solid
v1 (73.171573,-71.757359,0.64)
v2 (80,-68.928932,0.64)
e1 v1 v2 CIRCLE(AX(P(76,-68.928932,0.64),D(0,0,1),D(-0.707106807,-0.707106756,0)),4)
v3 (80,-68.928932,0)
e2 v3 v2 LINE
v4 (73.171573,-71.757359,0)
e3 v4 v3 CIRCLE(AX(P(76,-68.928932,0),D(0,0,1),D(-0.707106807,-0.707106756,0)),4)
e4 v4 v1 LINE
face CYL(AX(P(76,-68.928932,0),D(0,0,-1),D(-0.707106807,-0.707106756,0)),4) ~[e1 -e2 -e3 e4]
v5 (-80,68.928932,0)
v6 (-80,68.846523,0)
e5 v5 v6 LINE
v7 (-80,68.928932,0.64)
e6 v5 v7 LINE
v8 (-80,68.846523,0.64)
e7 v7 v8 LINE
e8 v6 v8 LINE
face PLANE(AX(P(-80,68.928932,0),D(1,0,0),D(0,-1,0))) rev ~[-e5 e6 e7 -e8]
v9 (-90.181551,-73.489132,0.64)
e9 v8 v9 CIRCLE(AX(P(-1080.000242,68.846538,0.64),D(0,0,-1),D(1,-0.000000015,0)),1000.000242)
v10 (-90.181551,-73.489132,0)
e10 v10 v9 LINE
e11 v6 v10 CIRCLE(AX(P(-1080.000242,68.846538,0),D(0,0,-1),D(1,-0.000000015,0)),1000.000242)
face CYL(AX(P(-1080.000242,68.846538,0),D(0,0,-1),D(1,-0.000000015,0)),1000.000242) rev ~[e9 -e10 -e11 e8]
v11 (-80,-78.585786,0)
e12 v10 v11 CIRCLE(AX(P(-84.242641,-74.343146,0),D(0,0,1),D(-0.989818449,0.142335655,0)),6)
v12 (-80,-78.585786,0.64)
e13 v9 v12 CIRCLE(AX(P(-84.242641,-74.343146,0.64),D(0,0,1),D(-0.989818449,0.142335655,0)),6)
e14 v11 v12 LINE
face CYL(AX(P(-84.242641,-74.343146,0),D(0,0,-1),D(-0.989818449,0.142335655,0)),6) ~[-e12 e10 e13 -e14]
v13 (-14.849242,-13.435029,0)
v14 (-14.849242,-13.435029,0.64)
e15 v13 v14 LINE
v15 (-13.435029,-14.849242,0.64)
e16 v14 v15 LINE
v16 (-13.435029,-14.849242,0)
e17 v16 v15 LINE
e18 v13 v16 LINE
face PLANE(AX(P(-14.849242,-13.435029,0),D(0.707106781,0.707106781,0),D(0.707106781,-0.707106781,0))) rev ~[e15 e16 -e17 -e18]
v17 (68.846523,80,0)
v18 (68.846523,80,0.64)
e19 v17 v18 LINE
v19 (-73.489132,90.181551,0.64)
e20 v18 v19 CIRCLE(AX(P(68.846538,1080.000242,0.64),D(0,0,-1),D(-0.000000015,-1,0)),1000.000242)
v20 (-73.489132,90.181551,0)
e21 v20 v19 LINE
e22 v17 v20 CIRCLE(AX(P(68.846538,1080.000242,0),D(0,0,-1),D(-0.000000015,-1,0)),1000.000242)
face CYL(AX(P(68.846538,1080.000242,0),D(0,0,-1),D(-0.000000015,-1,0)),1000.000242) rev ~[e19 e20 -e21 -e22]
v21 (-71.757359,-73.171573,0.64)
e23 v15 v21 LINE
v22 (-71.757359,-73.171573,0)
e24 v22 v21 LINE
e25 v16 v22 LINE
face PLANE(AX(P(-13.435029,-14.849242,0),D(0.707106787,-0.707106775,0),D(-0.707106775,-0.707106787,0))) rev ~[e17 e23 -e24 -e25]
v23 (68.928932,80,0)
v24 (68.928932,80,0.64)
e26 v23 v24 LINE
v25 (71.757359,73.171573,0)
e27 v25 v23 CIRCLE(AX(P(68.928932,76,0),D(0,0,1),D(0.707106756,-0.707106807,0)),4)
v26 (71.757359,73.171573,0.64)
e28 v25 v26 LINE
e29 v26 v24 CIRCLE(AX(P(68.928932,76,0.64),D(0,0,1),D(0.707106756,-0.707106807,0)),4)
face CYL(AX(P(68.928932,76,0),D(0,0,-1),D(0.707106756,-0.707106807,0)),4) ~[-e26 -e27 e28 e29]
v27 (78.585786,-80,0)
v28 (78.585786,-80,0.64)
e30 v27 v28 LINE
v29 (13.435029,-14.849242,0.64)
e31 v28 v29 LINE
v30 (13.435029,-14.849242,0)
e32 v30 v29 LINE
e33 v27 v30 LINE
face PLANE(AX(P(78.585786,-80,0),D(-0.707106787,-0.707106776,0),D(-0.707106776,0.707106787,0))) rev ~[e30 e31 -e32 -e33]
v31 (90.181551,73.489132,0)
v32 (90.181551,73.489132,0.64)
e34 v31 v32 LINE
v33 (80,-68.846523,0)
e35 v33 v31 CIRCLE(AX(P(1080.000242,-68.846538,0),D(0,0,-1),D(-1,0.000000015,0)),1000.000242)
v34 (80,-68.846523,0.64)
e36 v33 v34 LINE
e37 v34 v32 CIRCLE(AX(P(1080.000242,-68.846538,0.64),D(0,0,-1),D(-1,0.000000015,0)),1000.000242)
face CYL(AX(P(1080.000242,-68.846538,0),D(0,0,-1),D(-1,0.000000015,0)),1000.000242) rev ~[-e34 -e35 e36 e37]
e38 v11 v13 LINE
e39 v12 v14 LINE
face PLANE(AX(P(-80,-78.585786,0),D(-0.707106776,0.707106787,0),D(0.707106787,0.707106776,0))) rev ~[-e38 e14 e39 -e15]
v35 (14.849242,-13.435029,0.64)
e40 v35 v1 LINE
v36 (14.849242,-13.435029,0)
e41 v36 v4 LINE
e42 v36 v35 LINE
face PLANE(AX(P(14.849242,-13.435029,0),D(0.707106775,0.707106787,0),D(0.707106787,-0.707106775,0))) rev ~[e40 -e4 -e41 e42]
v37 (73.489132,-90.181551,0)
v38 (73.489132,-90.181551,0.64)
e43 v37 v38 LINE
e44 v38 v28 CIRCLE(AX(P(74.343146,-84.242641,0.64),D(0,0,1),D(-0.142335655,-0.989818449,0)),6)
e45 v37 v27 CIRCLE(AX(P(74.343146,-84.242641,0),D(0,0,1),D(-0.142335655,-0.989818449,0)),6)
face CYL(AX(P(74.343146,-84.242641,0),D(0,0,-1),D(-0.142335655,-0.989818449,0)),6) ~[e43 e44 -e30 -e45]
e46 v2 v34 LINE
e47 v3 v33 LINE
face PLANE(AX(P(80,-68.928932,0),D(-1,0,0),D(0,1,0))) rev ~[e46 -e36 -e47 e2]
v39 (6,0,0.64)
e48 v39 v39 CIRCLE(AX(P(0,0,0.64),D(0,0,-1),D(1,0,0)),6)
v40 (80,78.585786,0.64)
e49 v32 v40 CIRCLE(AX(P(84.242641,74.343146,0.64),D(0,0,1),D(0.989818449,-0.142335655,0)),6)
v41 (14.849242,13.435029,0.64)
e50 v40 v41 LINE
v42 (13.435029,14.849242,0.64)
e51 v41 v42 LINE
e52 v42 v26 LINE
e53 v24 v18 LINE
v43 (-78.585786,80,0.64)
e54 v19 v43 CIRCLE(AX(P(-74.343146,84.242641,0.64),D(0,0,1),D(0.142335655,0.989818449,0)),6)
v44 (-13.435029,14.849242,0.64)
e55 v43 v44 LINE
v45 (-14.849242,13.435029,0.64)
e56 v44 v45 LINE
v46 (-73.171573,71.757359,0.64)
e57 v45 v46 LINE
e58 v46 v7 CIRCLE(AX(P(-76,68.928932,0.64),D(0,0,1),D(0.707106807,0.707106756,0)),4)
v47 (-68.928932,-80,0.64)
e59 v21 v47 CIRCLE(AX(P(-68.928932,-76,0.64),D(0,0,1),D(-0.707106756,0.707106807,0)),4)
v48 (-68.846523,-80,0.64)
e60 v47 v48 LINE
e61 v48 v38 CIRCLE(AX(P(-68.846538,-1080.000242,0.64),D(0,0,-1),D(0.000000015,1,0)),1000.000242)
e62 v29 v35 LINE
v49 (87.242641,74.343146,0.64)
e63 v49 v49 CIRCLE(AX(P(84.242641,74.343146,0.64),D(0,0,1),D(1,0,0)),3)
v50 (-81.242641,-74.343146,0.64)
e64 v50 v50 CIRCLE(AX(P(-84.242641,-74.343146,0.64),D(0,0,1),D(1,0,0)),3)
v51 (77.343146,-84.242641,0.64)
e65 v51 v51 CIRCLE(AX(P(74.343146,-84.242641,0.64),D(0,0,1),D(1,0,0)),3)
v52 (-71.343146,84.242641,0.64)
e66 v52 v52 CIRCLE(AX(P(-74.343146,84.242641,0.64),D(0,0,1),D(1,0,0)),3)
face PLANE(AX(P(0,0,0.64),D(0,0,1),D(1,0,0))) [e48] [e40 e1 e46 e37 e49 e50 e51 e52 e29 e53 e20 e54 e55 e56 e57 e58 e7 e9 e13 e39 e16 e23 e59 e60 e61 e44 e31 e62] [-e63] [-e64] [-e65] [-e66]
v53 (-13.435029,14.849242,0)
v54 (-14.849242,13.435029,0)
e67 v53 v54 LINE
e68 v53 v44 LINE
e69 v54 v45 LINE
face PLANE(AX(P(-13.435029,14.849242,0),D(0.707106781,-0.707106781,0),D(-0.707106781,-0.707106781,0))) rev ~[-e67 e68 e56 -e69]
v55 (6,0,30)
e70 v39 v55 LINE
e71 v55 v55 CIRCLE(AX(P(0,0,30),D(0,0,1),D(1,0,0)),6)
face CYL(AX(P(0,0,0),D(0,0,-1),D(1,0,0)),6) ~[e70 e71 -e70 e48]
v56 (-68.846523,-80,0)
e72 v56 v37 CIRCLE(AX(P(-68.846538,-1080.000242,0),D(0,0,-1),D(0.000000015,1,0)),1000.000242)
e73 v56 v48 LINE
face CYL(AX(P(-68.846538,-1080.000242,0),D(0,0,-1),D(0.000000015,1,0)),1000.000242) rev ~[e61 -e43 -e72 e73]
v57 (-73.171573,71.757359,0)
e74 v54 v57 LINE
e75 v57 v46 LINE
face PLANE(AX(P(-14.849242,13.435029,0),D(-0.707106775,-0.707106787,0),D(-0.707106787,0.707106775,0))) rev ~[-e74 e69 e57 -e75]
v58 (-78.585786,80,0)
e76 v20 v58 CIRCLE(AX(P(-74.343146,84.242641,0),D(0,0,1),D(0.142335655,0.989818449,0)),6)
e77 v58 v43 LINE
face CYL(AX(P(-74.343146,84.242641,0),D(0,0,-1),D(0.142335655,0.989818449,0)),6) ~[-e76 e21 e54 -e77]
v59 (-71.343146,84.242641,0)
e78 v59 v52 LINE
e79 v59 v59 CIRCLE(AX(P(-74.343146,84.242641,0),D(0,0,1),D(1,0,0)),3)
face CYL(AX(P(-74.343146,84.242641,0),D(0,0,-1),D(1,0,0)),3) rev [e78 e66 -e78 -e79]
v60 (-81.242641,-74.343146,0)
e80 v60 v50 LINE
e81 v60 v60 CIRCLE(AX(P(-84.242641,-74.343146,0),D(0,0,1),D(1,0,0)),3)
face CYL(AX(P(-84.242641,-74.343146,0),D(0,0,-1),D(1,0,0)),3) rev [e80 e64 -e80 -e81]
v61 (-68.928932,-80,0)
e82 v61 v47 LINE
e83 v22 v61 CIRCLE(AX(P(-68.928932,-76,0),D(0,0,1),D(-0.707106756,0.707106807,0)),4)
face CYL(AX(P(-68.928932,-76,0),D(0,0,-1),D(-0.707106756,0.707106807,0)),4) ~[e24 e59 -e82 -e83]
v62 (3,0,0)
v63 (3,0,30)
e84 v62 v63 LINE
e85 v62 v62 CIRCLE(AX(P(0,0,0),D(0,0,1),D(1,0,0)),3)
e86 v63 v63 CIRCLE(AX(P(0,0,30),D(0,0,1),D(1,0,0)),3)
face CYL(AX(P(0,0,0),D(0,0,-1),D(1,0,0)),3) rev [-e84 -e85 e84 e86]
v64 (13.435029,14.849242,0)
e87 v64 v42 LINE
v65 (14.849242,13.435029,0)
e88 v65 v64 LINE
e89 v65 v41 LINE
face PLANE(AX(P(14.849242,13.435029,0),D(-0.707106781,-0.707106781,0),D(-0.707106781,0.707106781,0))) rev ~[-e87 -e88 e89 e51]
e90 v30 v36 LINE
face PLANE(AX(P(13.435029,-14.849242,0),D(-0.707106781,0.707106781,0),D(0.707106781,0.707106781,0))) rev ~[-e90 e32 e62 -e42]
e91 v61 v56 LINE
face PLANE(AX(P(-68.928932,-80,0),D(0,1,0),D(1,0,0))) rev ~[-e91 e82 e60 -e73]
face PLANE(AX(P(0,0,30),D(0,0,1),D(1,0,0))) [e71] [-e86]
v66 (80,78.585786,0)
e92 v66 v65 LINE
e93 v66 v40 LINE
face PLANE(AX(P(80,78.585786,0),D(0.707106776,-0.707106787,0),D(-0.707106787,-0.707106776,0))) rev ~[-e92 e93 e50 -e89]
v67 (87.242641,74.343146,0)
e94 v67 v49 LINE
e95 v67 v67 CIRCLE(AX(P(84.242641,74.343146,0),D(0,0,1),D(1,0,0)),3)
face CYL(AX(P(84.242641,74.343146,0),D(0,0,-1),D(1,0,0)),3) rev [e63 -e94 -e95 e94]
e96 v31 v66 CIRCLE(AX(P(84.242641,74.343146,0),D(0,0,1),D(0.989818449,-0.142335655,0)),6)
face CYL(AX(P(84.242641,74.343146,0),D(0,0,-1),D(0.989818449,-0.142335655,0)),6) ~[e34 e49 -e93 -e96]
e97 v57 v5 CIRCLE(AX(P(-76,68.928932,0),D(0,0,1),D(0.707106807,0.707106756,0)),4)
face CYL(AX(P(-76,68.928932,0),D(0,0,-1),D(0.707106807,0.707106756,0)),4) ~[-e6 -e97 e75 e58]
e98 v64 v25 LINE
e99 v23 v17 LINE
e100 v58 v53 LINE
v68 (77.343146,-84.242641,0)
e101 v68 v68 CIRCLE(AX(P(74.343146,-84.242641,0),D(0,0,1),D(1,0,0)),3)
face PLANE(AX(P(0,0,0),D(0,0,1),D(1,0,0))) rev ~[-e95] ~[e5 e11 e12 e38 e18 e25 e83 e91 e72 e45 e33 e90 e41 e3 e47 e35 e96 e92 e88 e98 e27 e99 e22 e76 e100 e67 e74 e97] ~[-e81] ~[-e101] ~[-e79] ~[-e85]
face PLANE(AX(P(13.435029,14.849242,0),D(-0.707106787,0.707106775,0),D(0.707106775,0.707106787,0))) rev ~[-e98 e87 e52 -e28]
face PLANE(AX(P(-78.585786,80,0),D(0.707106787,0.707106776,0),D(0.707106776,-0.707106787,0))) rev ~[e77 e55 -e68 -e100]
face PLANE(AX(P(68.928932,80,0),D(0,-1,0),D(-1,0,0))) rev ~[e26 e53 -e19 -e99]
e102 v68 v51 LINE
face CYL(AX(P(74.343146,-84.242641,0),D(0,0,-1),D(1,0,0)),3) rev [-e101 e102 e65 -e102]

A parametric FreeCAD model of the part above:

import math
import FreeCAD as App
import Part
import Sketcher

doc = App.newDocument("Part")
body = doc.addObject("PartDesign::Body", "Body")

# Sketch on XY plane
sketch1 = body.newObject("Sketcher::SketchObject", "Sketch")
sketch1.AttachmentSupport = (doc.getObject("XY_Plane"), [""])
sketch1.MapMode = "FlatFace"
sketch1.addGeometry(Part.Circle(App.Vector(0, 0, 0), App.Vector(0, 0, 1), 6), False)
sketch1.addGeometry(Part.Circle(App.Vector(0, 0, 0), App.Vector(0, 0, 1), 3), False)
sketch1.addConstraint(Sketcher.Constraint("Coincident", 0, 3, -1, 1))
sketch1.addConstraint(Sketcher.Constraint("Coincident", 1, 3, -1, 1))
sketch1.addConstraint(Sketcher.Constraint("Diameter", 0, 12.0))
sketch1.addConstraint(Sketcher.Constraint("Diameter", 1, 6.0))
pad1 = body.newObject("PartDesign::Pad", "Pad")
pad1.Profile = sketch1
pad1.Length = 30

# Sketch on XY plane
sketch2 = body.newObject("Sketcher::SketchObject", "Sketch001")
sketch2.AttachmentSupport = (doc.getObject("XY_Plane"), [""])
sketch2.MapMode = "FlatFace"
sketch2.addGeometry(Part.LineSegment(App.Vector(68.93, 80, 0), App.Vector(68.85, 80, 0)), False)
sketch2.addGeometry(Part.ArcOfCircle(Part.Circle(App.Vector(68.85, 1080, 0), App.Vector(0, 0, 1), 1000), math.radians(-98.18), math.radians(-90)), False)
sketch2.addGeometry(Part.ArcOfCircle(Part.Circle(App.Vector(-74.34, 84.24, 0), App.Vector(0, 0, 1), 6), math.radians(82), math.radians(225)), False)
sketch2.addGeometry(Part.LineSegment(App.Vector(-78.59, 80, 0), App.Vector(-13.44, 14.85, 0)), False)
sketch2.addGeometry(Part.LineSegment(App.Vector(-13.44, 14.85, 0), App.Vector(-14.85, 13.44, 0)), False)
sketch2.addGeometry(Part.LineSegment(App.Vector(-14.85, 13.44, 0), App.Vector(-73.17, 71.76, 0)), False)
sketch2.addGeometry(Part.ArcOfCircle(Part.Circle(App.Vector(-76, 68.93, 0), App.Vector(0, 0, 1), 4), math.radians(45), math.radians(180)), False)
sketch2.addGeometry(Part.LineSegment(App.Vector(-80, 68.93, 0), App.Vector(-80, 68.85, 0)), False)
sketch2.addGeometry(Part.ArcOfCircle(Part.Circle(App.Vector(-1080, 68.85, 0), App.Vector(0, 0, 1), 1000), math.radians(-8.18), math.radians(0)), False)
sketch2.addGeometry(Part.ArcOfCircle(Part.Circle(App.Vector(-84.24, -74.34, 0), App.Vector(0, 0, 1), 6), math.radians(172), math.radians(315)), False)
sketch2.addGeometry(Part.LineSegment(App.Vector(-80, -78.59, 0), App.Vector(-14.85, -13.44, 0)), False)
sketch2.addGeometry(Part.LineSegment(App.Vector(-14.85, -13.44, 0), App.Vector(-13.44, -14.85, 0)), False)
sketch2.addGeometry(Part.LineSegment(App.Vector(-13.44, -14.85, 0), App.Vector(-71.76, -73.17, 0)), False)
sketch2.addGeometry(Part.ArcOfCircle(Part.Circle(App.Vector(-68.93, -76, 0), App.Vector(0, 0, 1), 4), math.radians(135), math.radians(270)), False)
sketch2.addGeometry(Part.LineSegment(App.Vector(-68.93, -80, 0), App.Vector(-68.85, -80, 0)), False)
sketch2.addGeometry(Part.ArcOfCircle(Part.Circle(App.Vector(-68.85, -1080, 0), App.Vector(0, 0, 1), 1000), math.radians(81.82), math.radians(90)), False)
sketch2.addGeometry(Part.ArcOfCircle(Part.Circle(App.Vector(74.34, -84.24, 0), App.Vector(0, 0, 1), 6), math.radians(-98), math.radians(45)), False)
sketch2.addGeometry(Part.LineSegment(App.Vector(78.59, -80, 0), App.Vector(13.44, -14.85, 0)), False)
sketch2.addGeometry(Part.LineSegment(App.Vector(13.44, -14.85, 0), App.Vector(14.85, -13.44, 0)), False)
sketch2.addGeometry(Part.LineSegment(App.Vector(14.85, -13.44, 0), App.Vector(73.17, -71.76, 0)), False)
sketch2.addGeometry(Part.ArcOfCircle(Part.Circle(App.Vector(76, -68.93, 0), App.Vector(0, 0, 1), 4), math.radians(-135), math.radians(0)), False)
sketch2.addGeometry(Part.LineSegment(App.Vector(80, -68.93, 0), App.Vector(80, -68.85, 0)), False)
sketch2.addGeometry(Part.ArcOfCircle(Part.Circle(App.Vector(1080, -68.85, 0), App.Vector(0, 0, 1), 1000), math.radians(171.82), math.radians(180)), False)
sketch2.addGeometry(Part.ArcOfCircle(Part.Circle(App.Vector(84.24, 74.34, 0), App.Vector(0, 0, 1), 6), math.radians(-8), math.radians(135)), False)
sketch2.addGeometry(Part.LineSegment(App.Vector(80, 78.59, 0), App.Vector(14.85, 13.44, 0)), False)
sketch2.addGeometry(Part.LineSegment(App.Vector(14.85, 13.44, 0), App.Vector(13.44, 14.85, 0)), False)
sketch2.addGeometry(Part.LineSegment(App.Vector(13.44, 14.85, 0), App.Vector(71.76, 73.17, 0)), False)
sketch2.addGeometry(Part.ArcOfCircle(Part.Circle(App.Vector(68.93, 76, 0), App.Vector(0, 0, 1), 4), math.radians(-45), math.radians(90)), False)
sketch2.addGeometry(Part.Circle(App.Vector(-84.24, -74.34, 0), App.Vector(0, 0, 1), 3), False)
sketch2.addGeometry(Part.Circle(App.Vector(74.34, -84.24, 0), App.Vector(0, 0, 1), 3), False)
sketch2.addGeometry(Part.Circle(App.Vector(-74.34, 84.24, 0), App.Vector(0, 0, 1), 3), False)
sketch2.addGeometry(Part.Circle(App.Vector(0, 0, 0), App.Vector(0, 0, 1), 3), False)
sketch2.addGeometry(Part.Circle(App.Vector(84.24, 74.34, 0), App.Vector(0, 0, 1), 3), False)
sketch2.addConstraint(Sketcher.Constraint("Tangent", 0, 2, 1, 2))
sketch2.addConstraint(Sketcher.Constraint("Tangent", 1, 1, 2, 1))
sketch2.addConstraint(Sketcher.Constraint("Tangent", 2, 2, 3, 1))
sketch2.addConstraint(Sketcher.Constraint("Coincident", 3, 2, 4, 1))
sketch2.addConstraint(Sketcher.Constraint("Coincident", 4, 2, 5, 1))
sketch2.addConstraint(Sketcher.Constraint("Tangent", 5, 2, 6, 1))
sketch2.addConstraint(Sketcher.Constraint("Tangent", 6, 2, 7, 1))
sketch2.addConstraint(Sketcher.Constraint("Tangent", 7, 2, 8, 2))
sketch2.addConstraint(Sketcher.Constraint("Tangent", 8, 1, 9, 1))
sketch2.addConstraint(Sketcher.Constraint("Tangent", 9, 2, 10, 1))
sketch2.addConstraint(Sketcher.Constraint("Coincident", 10, 2, 11, 1))
sketch2.addConstraint(Sketcher.Constraint("Coincident", 11, 2, 12, 1))
sketch2.addConstraint(Sketcher.Constraint("Tangent", 12, 2, 13, 1))
sketch2.addConstraint(Sketcher.Constraint("Tangent", 13, 2, 14, 1))
sketch2.addConstraint(Sketcher.Constraint("Tangent", 14, 2, 15, 2))
sketch2.addConstraint(Sketcher.Constraint("Tangent", 15, 1, 16, 1))
sketch2.addConstraint(Sketcher.Constraint("Tangent", 16, 2, 17, 1))
sketch2.addConstraint(Sketcher.Constraint("Coincident", 17, 2, 18, 1))
sketch2.addConstraint(Sketcher.Constraint("Coincident", 18, 2, 19, 1))
sketch2.addConstraint(Sketcher.Constraint("Tangent", 19, 2, 20, 1))
sketch2.addConstraint(Sketcher.Constraint("Tangent", 20, 2, 21, 1))
sketch2.addConstraint(Sketcher.Constraint("Tangent", 21, 2, 22, 2))
sketch2.addConstraint(Sketcher.Constraint("Tangent", 22, 1, 23, 1))
sketch2.addConstraint(Sketcher.Constraint("Tangent", 23, 2, 24, 1))
sketch2.addConstraint(Sketcher.Constraint("Coincident", 24, 2, 25, 1))
sketch2.addConstraint(Sketcher.Constraint("Coincident", 25, 2, 26, 1))
sketch2.addConstraint(Sketcher.Constraint("Tangent", 26, 2, 27, 1))
sketch2.addConstraint(Sketcher.Constraint("Tangent", 27, 2, 0, 1))
sketch2.addConstraint(Sketcher.Constraint("Coincident", 31, 3, -1, 1))
sketch2.addConstraint(Sketcher.Constraint("Coincident", 28, 3, 9, 3))
sketch2.addConstraint(Sketcher.Constraint("Coincident", 29, 3, 16, 3))
sketch2.addConstraint(Sketcher.Constraint("Coincident", 30, 3, 2, 3))
sketch2.addConstraint(Sketcher.Constraint("Coincident", 32, 3, 23, 3))
sketch2.addConstraint(Sketcher.Constraint("Equal", 1, 8))
sketch2.addConstraint(Sketcher.Constraint("Equal", 2, 9))
sketch2.addConstraint(Sketcher.Constraint("Equal", 6, 13))
sketch2.addConstraint(Sketcher.Constraint("Equal", 8, 15))
sketch2.addConstraint(Sketcher.Constraint("Equal", 9, 16))
sketch2.addConstraint(Sketcher.Constraint("Equal", 13, 20))
sketch2.addConstraint(Sketcher.Constraint("Equal", 15, 22))
sketch2.addConstraint(Sketcher.Constraint("Equal", 16, 23))
sketch2.addConstraint(Sketcher.Constraint("Equal", 20, 27))
sketch2.addConstraint(Sketcher.Constraint("Equal", 28, 29))
sketch2.addConstraint(Sketcher.Constraint("Equal", 29, 30))
sketch2.addConstraint(Sketcher.Constraint("Equal", 30, 31))
sketch2.addConstraint(Sketcher.Constraint("Equal", 31, 32))
sketch2.addConstraint(Sketcher.Constraint("Symmetric", 1, 3, 15, 3, -1, 1))
sketch2.addConstraint(Sketcher.Constraint("Symmetric", 6, 3, 20, 3, -1, 1))
sketch2.addConstraint(Sketcher.Constraint("Symmetric", 9, 3, 23, 3, -1, 1))
sketch2.addConstraint(Sketcher.Constraint("Symmetric", 2, 2, 16, 2, -1, 1))
sketch2.addConstraint(Sketcher.Constraint("Symmetric", 4, 2, 18, 2, -1, 1))
sketch2.addConstraint(Sketcher.Constraint("Symmetric", 10, 2, 24, 2, -1, 1))
sketch2.addConstraint(Sketcher.Constraint("Symmetric", 11, 2, 25, 2, -1, 1))
sketch2.addConstraint(Sketcher.Constraint("Symmetric", 11, 2, 17, 2, -2))
sketch2.addConstraint(Sketcher.Constraint("Symmetric", 10, 2, 18, 2, -2))
sketch2.addConstraint(Sketcher.Constraint("Perpendicular", 3, 4))
sketch2.addConstraint(Sketcher.Constraint("Perpendicular", 4, 5))
sketch2.addConstraint(Sketcher.Constraint("Perpendicular", 5, 10))
sketch2.addConstraint(Sketcher.Constraint("Perpendicular", 10, 11))
sketch2.addConstraint(Sketcher.Constraint("Perpendicular", 11, 12))
sketch2.addConstraint(Sketcher.Constraint("Perpendicular", 17, 18))
sketch2.addConstraint(Sketcher.Constraint("Perpendicular", 25, 26))
sketch2.addConstraint(Sketcher.Constraint("Horizontal", 0, 2, 2, 2))
sketch2.addConstraint(Sketcher.Constraint("Vertical", 7, 2, 9, 2))
sketch2.addConstraint(Sketcher.Constraint("Equal", 0, 14))
sketch2.addConstraint(Sketcher.Constraint("Equal", 14, 7))
sketch2.addConstraint(Sketcher.Constraint("Equal", 7, 21))
sketch2.addConstraint(Sketcher.Constraint("Equal", 3, 10))
sketch2.addConstraint(Sketcher.Constraint("Diameter", 28, 6.0))
sketch2.addConstraint(Sketcher.Constraint("Radius", 2, 6.0))
sketch2.addConstraint(Sketcher.Constraint("Radius", 6, 4.0))
sketch2.addConstraint(Sketcher.Constraint("Distance", 4, 1.999999))
sketch2.addConstraint(Sketcher.Constraint("DistanceX", 6, 3, -1, 1, 76.0))
sketch2.addConstraint(Sketcher.Constraint("DistanceY", 13, 3, -1, 1, 76.0))
sketch2.addConstraint(Sketcher.Constraint("Radius", 1, 1000.000242))
sketch2.addConstraint(Sketcher.Constraint("DistanceX", 0, 2, 0, 1, 0.082409))
sketch2.addConstraint(Sketcher.Constraint("DistanceY", 3, 2, 2, 3, 69.393399))
pad2 = body.newObject("PartDesign::Pad", "Pad001")
pad2.Profile = sketch2
pad2.Length = 0.64

doc.recompute()
